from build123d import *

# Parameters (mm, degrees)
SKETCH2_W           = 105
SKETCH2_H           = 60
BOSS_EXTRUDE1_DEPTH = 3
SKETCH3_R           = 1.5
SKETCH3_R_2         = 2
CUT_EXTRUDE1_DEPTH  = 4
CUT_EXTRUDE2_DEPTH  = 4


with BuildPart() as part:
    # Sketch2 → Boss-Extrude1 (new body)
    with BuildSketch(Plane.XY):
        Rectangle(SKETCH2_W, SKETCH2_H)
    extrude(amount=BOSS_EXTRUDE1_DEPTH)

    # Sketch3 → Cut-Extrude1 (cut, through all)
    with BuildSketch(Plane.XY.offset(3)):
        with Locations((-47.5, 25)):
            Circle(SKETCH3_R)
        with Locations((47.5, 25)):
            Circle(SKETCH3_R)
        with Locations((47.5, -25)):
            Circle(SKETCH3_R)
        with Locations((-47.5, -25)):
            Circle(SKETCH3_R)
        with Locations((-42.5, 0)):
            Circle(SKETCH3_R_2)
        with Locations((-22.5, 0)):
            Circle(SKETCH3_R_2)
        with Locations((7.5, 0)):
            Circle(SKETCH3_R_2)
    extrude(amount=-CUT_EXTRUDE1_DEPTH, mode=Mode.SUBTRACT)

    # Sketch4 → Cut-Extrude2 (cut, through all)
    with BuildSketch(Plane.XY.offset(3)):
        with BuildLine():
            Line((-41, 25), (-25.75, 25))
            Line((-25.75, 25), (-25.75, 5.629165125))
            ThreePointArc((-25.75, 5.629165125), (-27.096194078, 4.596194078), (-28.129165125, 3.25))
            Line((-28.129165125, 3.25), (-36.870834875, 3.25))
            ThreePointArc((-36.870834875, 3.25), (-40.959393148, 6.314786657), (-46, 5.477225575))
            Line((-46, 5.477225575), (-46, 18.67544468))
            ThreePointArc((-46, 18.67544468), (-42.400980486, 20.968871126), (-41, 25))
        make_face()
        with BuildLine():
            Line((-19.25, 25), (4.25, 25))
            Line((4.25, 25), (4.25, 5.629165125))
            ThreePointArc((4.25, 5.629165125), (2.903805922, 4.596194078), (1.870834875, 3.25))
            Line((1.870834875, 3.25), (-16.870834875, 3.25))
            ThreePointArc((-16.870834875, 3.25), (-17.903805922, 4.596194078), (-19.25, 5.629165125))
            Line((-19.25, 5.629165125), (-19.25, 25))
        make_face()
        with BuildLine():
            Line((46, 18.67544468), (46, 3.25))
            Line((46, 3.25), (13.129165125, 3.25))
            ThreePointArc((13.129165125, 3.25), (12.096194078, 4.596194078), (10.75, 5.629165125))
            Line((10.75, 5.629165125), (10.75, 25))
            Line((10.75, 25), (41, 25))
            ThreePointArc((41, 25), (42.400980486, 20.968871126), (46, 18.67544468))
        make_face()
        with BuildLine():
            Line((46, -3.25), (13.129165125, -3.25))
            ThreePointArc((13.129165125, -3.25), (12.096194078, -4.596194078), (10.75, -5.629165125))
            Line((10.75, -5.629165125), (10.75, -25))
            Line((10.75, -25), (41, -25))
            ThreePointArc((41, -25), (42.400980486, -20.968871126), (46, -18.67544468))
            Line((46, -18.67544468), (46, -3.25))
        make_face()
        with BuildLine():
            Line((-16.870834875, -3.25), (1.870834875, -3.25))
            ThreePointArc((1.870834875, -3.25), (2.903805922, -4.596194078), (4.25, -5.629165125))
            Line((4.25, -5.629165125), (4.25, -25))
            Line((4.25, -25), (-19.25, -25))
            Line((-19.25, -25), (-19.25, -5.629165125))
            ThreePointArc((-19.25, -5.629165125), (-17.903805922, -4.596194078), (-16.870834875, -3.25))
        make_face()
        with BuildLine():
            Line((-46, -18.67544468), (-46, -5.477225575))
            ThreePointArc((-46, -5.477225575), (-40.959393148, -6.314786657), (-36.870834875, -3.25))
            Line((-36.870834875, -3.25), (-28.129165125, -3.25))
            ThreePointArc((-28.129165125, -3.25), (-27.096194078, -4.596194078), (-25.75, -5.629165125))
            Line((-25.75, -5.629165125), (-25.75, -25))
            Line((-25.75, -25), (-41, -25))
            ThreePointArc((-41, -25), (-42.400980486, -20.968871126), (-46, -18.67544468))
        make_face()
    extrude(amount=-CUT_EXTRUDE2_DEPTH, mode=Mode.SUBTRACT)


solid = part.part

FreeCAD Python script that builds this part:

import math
import FreeCAD as App
import Part
import Sketcher
from FreeCAD import Vector


def add_polygon(sketch, points):
    """Adds a closed chain of lines whose ends are joined by coincident constraints."""
    first, n = sketch.GeometryCount, len(points)
    for a, b in zip(points, points[1:] + points[:1]):
        sketch.addGeometry(Part.LineSegment(App.Vector(*a, 0), App.Vector(*b, 0)), False)
    for i in range(n):
        sketch.addConstraint(Sketcher.Constraint("Coincident", first + i, 2, first + (i + 1) % n, 1))

doc = App.newDocument("Part")
params = doc.addObject("Spreadsheet::Sheet", "Params")
for row, (alias, value) in enumerate([
    ("sketch1_width", "105 mm"),
    ("sketch1_height", "60 mm"),
    ("pad1_length", "3 mm"),
    ("sketch2_diameter", "3 mm"),
    ("sketch2_diameter2", "4 mm"),
    ("sketch3_radius", "6.5 mm"),
    ("sketch3_width", "23.5 mm"),
], start=1):
    params.set(f"A{row}", alias)
    params.set(f"B{row}", "=" + value)
    params.setAlias(f"B{row}", alias)

body = doc.addObject("PartDesign::Body", "Body")

# Sketch on XY plane
sketch1 = doc.addObject("Sketcher::SketchObject", "Sketch")
body.addObject(sketch1)
sketch1.AttachmentSupport = (doc.XY_Plane, [""])
sketch1.MapMode = "FlatFace"
add_polygon(sketch1, [(-52, 30), (-52, -30), (52, -30), (52, 30)])  # lines 0-3
sketch1.addConstraint([
    Sketcher.Constraint("Vertical", 0),
    Sketcher.Constraint("Horizontal", 1),
    Sketcher.Constraint("Vertical", 2),
    Sketcher.Constraint("Horizontal", 3),
    Sketcher.Constraint("Symmetric", 0, 2, 2, 2, -1, 1),
    Sketcher.Constraint("DistanceX", 1, 1, 1, 2, 105.0),
    Sketcher.Constraint("DistanceY", 0, 2, 0, 1, 60.0),
])
sketch1.setExpression("Constraints[9]", "Params.sketch1_width")
sketch1.setExpression("Constraints[10]", "Params.sketch1_height")
pad1 = doc.addObject("PartDesign::Pad", "Pad")
body.addObject(pad1)
pad1.Profile = sketch1
pad1.setExpression("Length", "Params.pad1_length")

# Sketch on XY plane
sketch2 = doc.addObject("Sketcher::SketchObject", "Sketch001")
body.addObject(sketch2)
sketch2.AttachmentSupport = (doc.XY_Plane, [""])
sketch2.MapMode = "FlatFace"
sketch2.AttachmentOffset = App.Placement(Vector(0, 0, 3), App.Rotation())
sketch2.addGeometry([
    Part.Circle(Vector(-47.5, 25, 0), Vector(0, 0, 1), 1.5),  # 0
    Part.Circle(Vector(47.5, 25, 0), Vector(0, 0, 1), 1.5),  # 1
    Part.Circle(Vector(47.5, -25, 0), Vector(0, 0, 1), 1.5),  # 2
    Part.Circle(Vector(-47.5, -25, 0), Vector(0, 0, 1), 1.5),  # 3
    Part.Circle(Vector(-42.5, 0, 0), Vector(0, 0, 1), 2),  # 4
    Part.Circle(Vector(-22.5, 0, 0), Vector(0, 0, 1), 2),  # 5
    Part.Circle(Vector(7.5, 0, 0), Vector(0, 0, 1), 2),  # 6
], False)
sketch2.addConstraint([
    Sketcher.Constraint("Equal", 0, 1),
    Sketcher.Constraint("Equal", 1, 2),
    Sketcher.Constraint("Equal", 2, 3),
    Sketcher.Constraint("Equal", 4, 5),
    Sketcher.Constraint("Equal", 5, 6),
    Sketcher.Constraint("Symmetric", 0, 3, 2, 3, -1, 1),
    Sketcher.Constraint("Symmetric", 1, 3, 3, 3, -1, 1),
    Sketcher.Constraint("Symmetric", 0, 3, 1, 3, -2),
    Sketcher.Constraint("PointOnObject", 4, 3, -1),
    Sketcher.Constraint("PointOnObject", 5, 3, -1),
    Sketcher.Constraint("PointOnObject", 6, 3, -1),
    Sketcher.Constraint("Diameter", 0, 3.0),
    Sketcher.Constraint("Diameter", 4, 4.0),
    Sketcher.Constraint("DistanceY", -1, 1, 0, 3, 25.0),
    Sketcher.Constraint("DistanceX", 0, 3, 1, 3, 95.0),
    Sketcher.Constraint("DistanceX", 0, 3, 4, 3, 5.0),
    Sketcher.Constraint("DistanceX", 4, 3, 5, 3, 20.0),
    Sketcher.Constraint("DistanceX", 5, 3, 6, 3, 30.0),
])
sketch2.setExpression("Constraints[11]", "Params.sketch2_diameter")
sketch2.setExpression("Constraints[12]", "Params.sketch2_diameter2")
pocket1 = doc.addObject("PartDesign::Pocket", "Pocket")
body.addObject(pocket1)
pocket1.Profile = sketch2
pocket1.Type = "ThroughAll"

# Sketch on XY plane
sketch3 = doc.addObject("Sketcher::SketchObject", "Sketch002")
body.addObject(sketch3)
sketch3.AttachmentSupport = (doc.XY_Plane, [""])
sketch3.MapMode = "FlatFace"
sketch3.AttachmentOffset = App.Placement(Vector(0, 0, 3), App.Rotation())
sketch3.addGeometry([
    Part.LineSegment(Vector(-25.8, 25, 0), Vector(-41, 25, 0)),  # 0
    Part.ArcOfCircle(Part.Circle(Vector(-47.5, 25, 0), Vector(0, 0, 1), 6.5), math.radians(-77), math.radians(0)),  # 1
    Part.LineSegment(Vector(-46, 18.7, 0), Vector(-46, 5.5, 0)),  # 2
    Part.ArcOfCircle(Part.Circle(Vector(-42.5, 0, 0), Vector(0, 0, 1), 6.5), math.radians(30), math.radians(123)),  # 3
    Part.LineSegment(Vector(-36.9, 3.2, 0), Vector(-28.1, 3.2, 0)),  # 4
    Part.ArcOfCircle(Part.Circle(Vector(-22.5, 0, 0), Vector(0, 0, 1), 6.5), math.radians(120), math.radians(150)),  # 5
    Part.LineSegment(Vector(-25.8, 5.6, 0), Vector(-25.8, 25, 0)),  # 6
    Part.LineSegment(Vector(4.2, 25, 0), Vector(-19.2, 25, 0)),  # 7
    Part.LineSegment(Vector(-19.2, 25, 0), Vector(-19.2, 5.6, 0)),  # 8
    Part.ArcOfCircle(Part.Circle(Vector(-22.5, 0, 0), Vector(0, 0, 1), 6.5), math.radians(30), math.radians(60)),  # 9
    Part.LineSegment(Vector(-16.9, 3.2, 0), Vector(1.9, 3.2, 0)),  # 10
    Part.ArcOfCircle(Part.Circle(Vector(7.5, 0, 0), Vector(0, 0, 1), 6.5), math.radians(120), math.radians(150)),  # 11
    Part.LineSegment(Vector(4.2, 5.6, 0), Vector(4.2, 25, 0)),  # 12
    Part.LineSegment(Vector(46, 3.2, 0), Vector(46, 18.7, 0)),  # 13
    Part.ArcOfCircle(Part.Circle(Vector(47.5, 25, 0), Vector(0, 0, 1), 6.5), math.radians(180), math.radians(257)),  # 14
    Part.LineSegment(Vector(41, 25, 0), Vector(10.8, 25, 0)),  # 15
    Part.LineSegment(Vector(10.8, 25, 0), Vector(10.8, 5.6, 0)),  # 16
    Part.ArcOfCircle(Part.Circle(Vector(7.5, 0, 0), Vector(0, 0, 1), 6.5), math.radians(30), math.radians(60)),  # 17
    Part.LineSegment(Vector(13.1, 3.2, 0), Vector(46, 3.2, 0)),  # 18
    Part.LineSegment(Vector(46, -3.2, 0), Vector(13.1, -3.2, 0)),  # 19
    Part.ArcOfCircle(Part.Circle(Vector(7.5, 0, 0), Vector(0, 0, 1), 6.5), math.radians(-60), math.radians(-30)),  # 20
    Part.LineSegment(Vector(10.8, -5.6, 0), Vector(10.8, -25, 0)),  # 21
    Part.LineSegment(Vector(10.8, -25, 0), Vector(41, -25, 0)),  # 22
    Part.ArcOfCircle(Part.Circle(Vector(47.5, -25, 0), Vector(0, 0, 1), 6.5), math.radians(103), math.radians(180)),  # 23
    Part.LineSegment(Vector(46, -18.7, 0), Vector(46, -3.2, 0)),  # 24
    Part.LineSegment(Vector(1.9, -3.2, 0), Vector(-16.9, -3.2, 0)),  # 25
    Part.ArcOfCircle(Part.Circle(Vector(-22.5, 0, 0), Vector(0, 0, 1), 6.5), math.radians(-60), math.radians(-30)),  # 26
    Part.LineSegment(Vector(-19.2, -5.6, 0), Vector(-19.2, -25, 0)),  # 27
    Part.LineSegment(Vector(-19.2, -25, 0), Vector(4.2, -25, 0)),  # 28
    Part.LineSegment(Vector(4.2, -25, 0), Vector(4.2, -5.6, 0)),  # 29
    Part.ArcOfCircle(Part.Circle(Vector(7.5, 0, 0), Vector(0, 0, 1), 6.5), math.radians(-150), math.radians(-120)),  # 30
    Part.LineSegment(Vector(-46, -5.5, 0), Vector(-46, -18.7, 0)),  # 31
    Part.ArcOfCircle(Part.Circle(Vector(-47.5, -25, 0), Vector(0, 0, 1), 6.5), math.radians(0), math.radians(77)),  # 32
    Part.LineSegment(Vector(-41, -25, 0), Vector(-25.8, -25, 0)),  # 33
    Part.LineSegment(Vector(-25.8, -25, 0), Vector(-25.8, -5.6, 0)),  # 34
    Part.ArcOfCircle(Part.Circle(Vector(-22.5, 0, 0), Vector(0, 0, 1), 6.5), math.radians(-150), math.radians(-120)),  # 35
    Part.LineSegment(Vector(-28.1, -3.2, 0), Vector(-36.9, -3.2, 0)),  # 36
    Part.ArcOfCircle(Part.Circle(Vector(-42.5, 0, 0), Vector(0, 0, 1), 6.5), math.radians(-123), math.radians(-30)),  # 37
], False)
sketch3.addConstraint([
    Sketcher.Constraint("Coincident", 0, 2, 1, 2),
    Sketcher.Constraint("Coincident", 1, 1, 2, 1),
    Sketcher.Constraint("Coincident", 2, 2, 3, 2),
    Sketcher.Constraint("Coincident", 3, 1, 4, 1),
    Sketcher.Constraint("Coincident", 4, 2, 5, 2),
    Sketcher.Constraint("Coincident", 5, 1, 6, 1),
    Sketcher.Constraint("Coincident", 6, 2, 0, 1),
    Sketcher.Constraint("Coincident", 7, 2, 8, 1),
    Sketcher.Constraint("Coincident", 8, 2, 9, 2),
    Sketcher.Constraint("Coincident", 9, 1, 10, 1),
    Sketcher.Constraint("Coincident", 10, 2, 11, 2),
    Sketcher.Constraint("Coincident", 11, 1, 12, 1),
    Sketcher.Constraint("Coincident", 12, 2, 7, 1),
    Sketcher.Constraint("Coincident", 13, 2, 14, 2),
    Sketcher.Constraint("Coincident", 14, 1, 15, 1),
    Sketcher.Constraint("Coincident", 15, 2, 16, 1),
    Sketcher.Constraint("Coincident", 16, 2, 17, 2),
    Sketcher.Constraint("Coincident", 17, 1, 18, 1),
    Sketcher.Constraint("Coincident", 18, 2, 13, 1),
    Sketcher.Constraint("Coincident", 19, 2, 20, 2),
    Sketcher.Constraint("Coincident", 20, 1, 21, 1),
    Sketcher.Constraint("Coincident", 21, 2, 22, 1),
    Sketcher.Constraint("Coincident", 22, 2, 23, 2),
    Sketcher.Constraint("Coincident", 23, 1, 24, 1),
    Sketcher.Constraint("Coincident", 24, 2, 19, 1),
    Sketcher.Constraint("Coincident", 25, 2, 26, 2),
    Sketcher.Constraint("Coincident", 26, 1, 27, 1),
    Sketcher.Constraint("Coincident", 27, 2, 28, 1),
    Sketcher.Constraint("Coincident", 28, 2, 29, 1),
    Sketcher.Constraint("Coincident", 29, 2, 30, 2),
    Sketcher.Constraint("Coincident", 30, 1, 25, 1),
    Sketcher.Constraint("Coincident", 31, 2, 32, 2),
    Sketcher.Constraint("Coincident", 32, 1, 33, 1),
    Sketcher.Constraint("Coincident", 33, 2, 34, 1),
    Sketcher.Constraint("Coincident", 34, 2, 35, 2),
    Sketcher.Constraint("Coincident", 35, 1, 36, 1),
    Sketcher.Constraint("Coincident", 36, 2, 37, 2),
    Sketcher.Constraint("Coincident", 37, 1, 31, 1),
    Sketcher.Constraint("Horizontal", 0),
    Sketcher.Constraint("Vertical", 2),
    Sketcher.Constraint("Horizontal", 4),
    Sketcher.Constraint("Vertical", 6),
    Sketcher.Constraint("Horizontal", 7),
    Sketcher.Constraint("Vertical", 8),
    Sketcher.Constraint("Horizontal", 10),
    Sketcher.Constraint("Vertical", 12),
    Sketcher.Constraint("Vertical", 13),
    Sketcher.Constraint("Horizontal", 15),
    Sketcher.Constraint("Vertical", 16),
    Sketcher.Constraint("Horizontal", 18),
    Sketcher.Constraint("Horizontal", 19),
    Sketcher.Constraint("Vertical", 21),
    Sketcher.Constraint("Horizontal", 22),
    Sketcher.Constraint("Vertical", 24),
    Sketcher.Constraint("Horizontal", 25),
    Sketcher.Constraint("Vertical", 27),
    Sketcher.Constraint("Horizontal", 28),
    Sketcher.Constraint("Vertical", 29),
    Sketcher.Constraint("Vertical", 31),
    Sketcher.Constraint("Horizontal", 33),
    Sketcher.Constraint("Vertical", 34),
    Sketcher.Constraint("Horizontal", 36),
    Sketcher.Constraint("Coincident", 9, 3, 5, 3),
    Sketcher.Constraint("Coincident", 17, 3, 11, 3),
    Sketcher.Constraint("Coincident", 20, 3, 11, 3),
    Sketcher.Constraint("Coincident", 26, 3, 5, 3),
    Sketcher.Constraint("Coincident", 30, 3, 11, 3),
    Sketcher.Constraint("Coincident", 35, 3, 5, 3),
    Sketcher.Constraint("Coincident", 37, 3, 3, 3),
    Sketcher.Constraint("Equal", 1, 3),
    Sketcher.Constraint("Equal", 3, 5),
    Sketcher.Constraint("Equal", 5, 9),
    Sketcher.Constraint("Equal", 9, 11),
    Sketcher.Constraint("Equal", 11, 14),
    Sketcher.Constraint("Equal", 14, 17),
    Sketcher.Constraint("Equal", 17, 20),
    Sketcher.Constraint("Equal", 20, 23),
    Sketcher.Constraint("Equal", 23, 26),
    Sketcher.Constraint("Equal", 26, 30),
    Sketcher.Constraint("Equal", 30, 32),
    Sketcher.Constraint("Equal", 32, 35),
    Sketcher.Constraint("Equal", 35, 37),
    Sketcher.Constraint("Symmetric", 1, 3, 23, 3, -1, 1),
    Sketcher.Constraint("Symmetric", 14, 3, 32, 3, -1, 1),
    Sketcher.Constraint("Symmetric", 1, 3, 14, 3, -2),
    Sketcher.Constraint("Symmetric", 17, 1, 19, 2, -1),
    Sketcher.Constraint("Symmetric", 15, 2, 21, 2, -1),
    Sketcher.Constraint("Symmetric", 9, 1, 25, 2, -1),
    Sketcher.Constraint("Symmetric", 7, 2, 27, 2, -1),
    Sketcher.Constraint("Symmetric", 6, 2, 33, 2, -1),
    Sketcher.Constraint("Symmetric", 3, 1, 36, 2, -1),
    Sketcher.Constraint("Horizontal", 14, 3, 0, 2),
    Sketcher.Constraint("Horizontal", 6, 2, 7, 2),
    Sketcher.Constraint("Horizontal", 5, 1, 8, 2),
    Sketcher.Constraint("Horizontal", 4, 2, 9, 1),
    Sketcher.Constraint("Horizontal", 8, 2, 11, 1),
    Sketcher.Constraint("Horizontal", 1, 1, 13, 2),
    Sketcher.Constraint("Horizontal", 12, 2, 14, 1),
    Sketcher.Constraint("Horizontal", 11, 1, 16, 2),
    Sketcher.Constraint("Horizontal", 10, 2, 17, 1),
    Sketcher.Constraint("Horizontal", 26, 1, 29, 2),
    Sketcher.Constraint("Horizontal", 23, 1, 31, 2),
    Sketcher.Constraint("Vertical", 18, 2, 23, 1),
    Sketcher.Constraint("Radius", 1, 6.5),
    Sketcher.Constraint("DistanceX", 7, 2, 7, 1, 23.5),
    Sketcher.Constraint("DistanceY", -1, 1, 1, 3, 25.0),
    Sketcher.Constraint("DistanceX", 0, 2, -1, 1, 41.0),
    Sketcher.Constraint("DistanceX", 1, 1, -1, 1, 46.0),
    Sketcher.Constraint("DistanceX", 1, 3, 3, 3, 5.0),
    Sketcher.Constraint("DistanceX", 3, 3, 5, 3, 20.0),
    Sketcher.Constraint("DistanceX", 9, 3, 11, 3, 30.0),
    Sketcher.Constraint("DistanceY", 19, 2, 17, 1, 6.5),
])
sketch3.setExpression("Constraints[103]", "Params.sketch3_radius")
sketch3.setExpression("Constraints[104]", "Params.sketch3_width")
pocket2 = doc.addObject("PartDesign::Pocket", "Pocket001")
body.addObject(pocket2)
pocket2.Profile = sketch3
pocket2.Type = "ThroughAll"

doc.recompute()
